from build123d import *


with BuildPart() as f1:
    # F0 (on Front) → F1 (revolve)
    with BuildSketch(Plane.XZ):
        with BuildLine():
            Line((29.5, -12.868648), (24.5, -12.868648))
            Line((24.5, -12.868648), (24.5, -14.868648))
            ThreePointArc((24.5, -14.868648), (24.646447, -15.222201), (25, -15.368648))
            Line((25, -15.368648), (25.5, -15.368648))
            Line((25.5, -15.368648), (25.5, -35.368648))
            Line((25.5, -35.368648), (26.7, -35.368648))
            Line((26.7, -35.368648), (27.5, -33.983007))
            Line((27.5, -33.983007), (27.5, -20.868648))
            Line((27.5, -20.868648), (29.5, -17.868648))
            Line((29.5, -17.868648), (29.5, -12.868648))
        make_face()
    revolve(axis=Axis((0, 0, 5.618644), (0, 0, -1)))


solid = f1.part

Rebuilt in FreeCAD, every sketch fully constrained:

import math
import FreeCAD as App
import Part
import Sketcher
Q = App.Units.Quantity

doc = App.newDocument("Part")
body = doc.addObject("PartDesign::Body", "Body")

# Sketch on XZ plane
sketch1 = doc.addObject("Sketcher::SketchObject", "Sketch")
body.addObject(sketch1)
sketch1.AttachmentSupport = (doc.XZ_Plane, [""])
sketch1.MapMode = "FlatFace"
sketch1.addGeometry([
    Part.LineSegment(App.Vector(29.5, -12.9, 0), App.Vector(24.5, -12.9, 0)),  # 0
    Part.LineSegment(App.Vector(24.5, -12.9, 0), App.Vector(24.5, -14.9, 0)),  # 1
    Part.ArcOfCircle(Part.Circle(App.Vector(25, -14.9, 0), App.Vector(0, 0, 1), 0.5), math.radians(-180), math.radians(-90)),  # 2
    Part.LineSegment(App.Vector(25, -15.4, 0), App.Vector(25.5, -15.4, 0)),  # 3
    Part.LineSegment(App.Vector(25.5, -15.4, 0), App.Vector(25.5, -35.4, 0)),  # 4
    Part.LineSegment(App.Vector(25.5, -35.4, 0), App.Vector(26.7, -35.4, 0)),  # 5
    Part.LineSegment(App.Vector(26.7, -35.4, 0), App.Vector(27.5, -34, 0)),  # 6
    Part.LineSegment(App.Vector(27.5, -34, 0), App.Vector(27.5, -20.9, 0)),  # 7
    Part.LineSegment(App.Vector(27.5, -20.9, 0), App.Vector(29.5, -17.9, 0)),  # 8
    Part.LineSegment(App.Vector(29.5, -17.9, 0), App.Vector(29.5, -12.9, 0)),  # 9
], False)
sketch1.addConstraint([
    Sketcher.Constraint("Coincident", 0, 2, 1, 1),
    Sketcher.Constraint("Coincident", 1, 2, 2, 1),
    Sketcher.Constraint("Coincident", 2, 2, 3, 1),
    Sketcher.Constraint("Coincident", 3, 2, 4, 1),
    Sketcher.Constraint("Coincident", 4, 2, 5, 1),
    Sketcher.Constraint("Coincident", 5, 2, 6, 1),
    Sketcher.Constraint("Coincident", 6, 2, 7, 1),
    Sketcher.Constraint("Coincident", 7, 2, 8, 1),
    Sketcher.Constraint("Coincident", 8, 2, 9, 1),
    Sketcher.Constraint("Coincident", 9, 2, 0, 1),
    Sketcher.Constraint("Horizontal", 0),
    Sketcher.Constraint("Vertical", 1),
    Sketcher.Constraint("Horizontal", 3),
    Sketcher.Constraint("Vertical", 4),
    Sketcher.Constraint("Horizontal", 5),
    Sketcher.Constraint("Vertical", 7),
    Sketcher.Constraint("Vertical", 9),
    Sketcher.Constraint("Horizontal", 2, 3, 1, 2),
    Sketcher.Constraint("Equal", 0, 9),
    Sketcher.Constraint("Radius", 2, 0.500001),
    Sketcher.Constraint("DistanceX", 0, 2, 0, 1, 5.0),
    Sketcher.Constraint("DistanceY", 1, 2, 1, 1, 2.0),
    Sketcher.Constraint("DistanceY", 4, 2, 4, 1, 20.0),
    Sketcher.Constraint("Angle", 6, Q("60.000006 deg")),
    Sketcher.Constraint("DistanceX", 3, 1, 3, 2, 0.5),
    Sketcher.Constraint("DistanceX", 5, 1, 5, 2, 1.2),
    Sketcher.Constraint("DistanceX", -1, 1, 2, 3, 25.000001),
    Sketcher.Constraint("DistanceX", -1, 1, 2, 2, 25.0),
    Sketcher.Constraint("DistanceX", 4, 2, 6, 2, 2.0),
    Sketcher.Constraint("DistanceY", 7, 2, 2, 3, 6.000001),
    Sketcher.Constraint("DistanceY", 7, 2, -1, 1, 20.868648),
])
revolution = doc.addObject("PartDesign::Revolution", "Revolution")
body.addObject(revolution)
revolution.Profile = sketch1
revolution.ReferenceAxis = (sketch1, ["V_Axis"])
revolution.Angle = 360

doc.recompute()
